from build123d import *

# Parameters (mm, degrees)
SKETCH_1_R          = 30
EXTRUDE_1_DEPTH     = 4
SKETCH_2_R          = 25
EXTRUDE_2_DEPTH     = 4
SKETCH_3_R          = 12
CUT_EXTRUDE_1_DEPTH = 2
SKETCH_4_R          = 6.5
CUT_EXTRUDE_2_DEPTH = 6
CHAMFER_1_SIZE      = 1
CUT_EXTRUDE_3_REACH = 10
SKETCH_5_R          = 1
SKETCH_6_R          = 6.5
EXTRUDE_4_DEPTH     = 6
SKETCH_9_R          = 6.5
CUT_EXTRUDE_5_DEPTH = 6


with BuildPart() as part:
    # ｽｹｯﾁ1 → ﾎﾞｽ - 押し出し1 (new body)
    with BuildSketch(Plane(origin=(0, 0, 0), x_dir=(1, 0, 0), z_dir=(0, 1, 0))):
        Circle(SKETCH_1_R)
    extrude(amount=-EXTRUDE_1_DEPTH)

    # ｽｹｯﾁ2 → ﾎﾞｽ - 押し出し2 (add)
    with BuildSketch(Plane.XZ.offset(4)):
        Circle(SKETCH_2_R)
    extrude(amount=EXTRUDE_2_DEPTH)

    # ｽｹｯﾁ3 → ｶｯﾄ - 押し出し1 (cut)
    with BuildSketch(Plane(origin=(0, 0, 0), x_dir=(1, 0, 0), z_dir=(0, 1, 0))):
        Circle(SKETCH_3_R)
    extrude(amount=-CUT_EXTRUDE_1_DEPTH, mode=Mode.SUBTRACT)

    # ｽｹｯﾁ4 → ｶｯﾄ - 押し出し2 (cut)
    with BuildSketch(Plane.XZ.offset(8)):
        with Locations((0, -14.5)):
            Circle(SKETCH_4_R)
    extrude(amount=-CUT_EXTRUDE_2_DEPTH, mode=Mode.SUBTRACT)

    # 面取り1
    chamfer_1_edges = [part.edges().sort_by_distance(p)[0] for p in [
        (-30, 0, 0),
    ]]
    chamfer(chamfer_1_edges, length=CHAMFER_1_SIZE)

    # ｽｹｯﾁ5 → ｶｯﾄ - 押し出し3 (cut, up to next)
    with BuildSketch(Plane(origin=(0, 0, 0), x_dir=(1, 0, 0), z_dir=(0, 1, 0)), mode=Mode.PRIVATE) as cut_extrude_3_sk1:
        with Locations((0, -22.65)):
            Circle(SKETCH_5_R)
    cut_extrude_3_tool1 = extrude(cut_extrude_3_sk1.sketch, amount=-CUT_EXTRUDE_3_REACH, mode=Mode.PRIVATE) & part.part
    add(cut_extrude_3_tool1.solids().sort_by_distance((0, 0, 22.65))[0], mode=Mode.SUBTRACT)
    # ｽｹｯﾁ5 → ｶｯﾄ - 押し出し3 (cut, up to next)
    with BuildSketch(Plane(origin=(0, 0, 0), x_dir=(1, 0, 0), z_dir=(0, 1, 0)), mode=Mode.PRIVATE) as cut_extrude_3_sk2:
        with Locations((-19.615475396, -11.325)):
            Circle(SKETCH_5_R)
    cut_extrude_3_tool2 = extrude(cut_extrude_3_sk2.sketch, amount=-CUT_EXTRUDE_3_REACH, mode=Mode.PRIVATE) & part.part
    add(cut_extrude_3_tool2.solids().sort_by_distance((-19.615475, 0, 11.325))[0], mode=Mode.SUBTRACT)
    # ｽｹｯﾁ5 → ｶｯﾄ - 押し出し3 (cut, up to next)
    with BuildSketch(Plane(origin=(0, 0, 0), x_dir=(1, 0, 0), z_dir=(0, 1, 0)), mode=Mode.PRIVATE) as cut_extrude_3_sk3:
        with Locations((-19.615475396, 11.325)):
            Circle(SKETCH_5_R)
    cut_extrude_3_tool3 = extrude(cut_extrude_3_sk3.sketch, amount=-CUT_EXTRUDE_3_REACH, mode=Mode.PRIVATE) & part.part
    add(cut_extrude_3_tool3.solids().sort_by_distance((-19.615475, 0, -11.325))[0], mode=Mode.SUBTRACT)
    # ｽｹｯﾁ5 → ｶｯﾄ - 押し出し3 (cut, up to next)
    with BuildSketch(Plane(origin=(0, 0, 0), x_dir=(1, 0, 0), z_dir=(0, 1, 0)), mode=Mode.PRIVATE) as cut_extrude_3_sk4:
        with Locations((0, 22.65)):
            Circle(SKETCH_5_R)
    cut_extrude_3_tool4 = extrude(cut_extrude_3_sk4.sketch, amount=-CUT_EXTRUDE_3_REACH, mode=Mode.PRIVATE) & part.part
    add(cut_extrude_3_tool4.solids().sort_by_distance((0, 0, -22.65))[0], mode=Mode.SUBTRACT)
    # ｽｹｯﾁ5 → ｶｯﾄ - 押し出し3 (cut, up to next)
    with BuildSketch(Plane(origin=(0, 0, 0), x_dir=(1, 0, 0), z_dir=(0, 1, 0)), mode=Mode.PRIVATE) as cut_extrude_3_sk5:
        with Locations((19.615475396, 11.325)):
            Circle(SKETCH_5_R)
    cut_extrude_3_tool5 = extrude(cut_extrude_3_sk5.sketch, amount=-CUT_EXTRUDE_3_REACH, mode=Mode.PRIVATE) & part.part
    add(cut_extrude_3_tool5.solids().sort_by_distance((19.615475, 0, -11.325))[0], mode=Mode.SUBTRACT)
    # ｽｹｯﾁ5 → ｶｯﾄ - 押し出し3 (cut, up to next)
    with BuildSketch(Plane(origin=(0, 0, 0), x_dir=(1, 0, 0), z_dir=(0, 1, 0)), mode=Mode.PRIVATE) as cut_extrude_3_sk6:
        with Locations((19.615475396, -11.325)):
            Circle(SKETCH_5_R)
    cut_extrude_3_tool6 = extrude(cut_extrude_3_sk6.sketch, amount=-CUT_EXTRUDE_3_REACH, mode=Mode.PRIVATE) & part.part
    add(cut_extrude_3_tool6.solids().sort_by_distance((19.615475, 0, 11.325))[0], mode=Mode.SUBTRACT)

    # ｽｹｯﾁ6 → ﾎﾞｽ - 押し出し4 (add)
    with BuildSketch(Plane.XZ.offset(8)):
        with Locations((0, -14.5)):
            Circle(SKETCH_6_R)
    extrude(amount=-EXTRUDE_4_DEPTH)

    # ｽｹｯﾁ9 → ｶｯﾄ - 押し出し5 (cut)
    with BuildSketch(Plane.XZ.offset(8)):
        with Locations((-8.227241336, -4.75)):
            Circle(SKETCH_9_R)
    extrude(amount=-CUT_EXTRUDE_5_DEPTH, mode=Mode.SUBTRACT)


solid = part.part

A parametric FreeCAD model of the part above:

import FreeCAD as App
import Part
import Sketcher
Q = App.Units.Quantity


def edges_at(feature, points):
    """Names of the edges that pass closest to the given points."""
    edges = feature.Shape.Edges
    near = lambda p: min(range(len(edges)), key=lambda i: edges[i].distToShape(Part.Vertex(*p))[0])
    return sorted({f"Edge{near(p) + 1}" for p in points})

doc = App.newDocument("Part")
params = doc.addObject("Spreadsheet::Sheet", "Params")
for row, (alias, value) in enumerate([
    ("sketch1_diameter", "60 mm"),
    ("pad1_length", "4 mm"),
    ("sketch2_diameter", "50 mm"),
    ("pad2_length", "4 mm"),
    ("sketch3_diameter", "24 mm"),
    ("pocket1_length", "2 mm"),
    ("sketch4_diameter", "13 mm"),
    ("pocket2_length", "6 mm"),
    ("chamfer_size", "1 mm"),
    ("sketch5_diameter", "2 mm"),
    ("sketch6_diameter", "2 mm"),
    ("sketch7_diameter", "2 mm"),
    ("sketch8_diameter", "2 mm"),
    ("sketch9_diameter", "2 mm"),
    ("sketch10_diameter", "2 mm"),
    ("sketch11_diameter", "13 mm"),
    ("pad3_length", "6 mm"),
    ("sketch12_diameter", "13 mm"),
    ("pocket9_length", "6 mm"),
], start=1):
    params.set(f"A{row}", alias)
    params.set(f"B{row}", "=" + value)
    params.setAlias(f"B{row}", alias)

body = doc.addObject("PartDesign::Body", "Body")

# Sketch on XZ plane
sketch1 = body.newObject("Sketcher::SketchObject", "Sketch")
sketch1.AttachmentSupport = (doc.getObject("XZ_Plane"), [""])
sketch1.MapMode = "FlatFace"
sketch1.addGeometry(Part.Circle(App.Vector(0, 0, 0), App.Vector(0, 0, 1), 30), False)
sketch1.addConstraint(Sketcher.Constraint("Coincident", 0, 3, -1, 1))
sketch1.addConstraint(Sketcher.Constraint("Diameter", 0, Q("60 mm")))
sketch1.setExpression("Constraints[1]", "Params.sketch1_diameter")
pad1 = body.newObject("PartDesign::Pad", "Pad")
pad1.Profile = sketch1
pad1.setExpression("Length", "Params.pad1_length")

# Sketch on XZ plane
sketch2 = body.newObject("Sketcher::SketchObject", "Sketch001")
sketch2.AttachmentSupport = (doc.getObject("XZ_Plane"), [""])
sketch2.MapMode = "FlatFace"
sketch2.AttachmentOffset = App.Placement(App.Vector(0, 0, 4), App.Rotation())
sketch2.addGeometry(Part.Circle(App.Vector(0, 0, 0), App.Vector(0, 0, 1), 25), False)
sketch2.addConstraint(Sketcher.Constraint("Coincident", 0, 3, -1, 1))
sketch2.addConstraint(Sketcher.Constraint("Diameter", 0, Q("50 mm")))
sketch2.setExpression("Constraints[1]", "Params.sketch2_diameter")
pad2 = body.newObject("PartDesign::Pad", "Pad001")
pad2.Profile = sketch2
pad2.setExpression("Length", "Params.pad2_length")

# Sketch on XZ plane
sketch3 = body.newObject("Sketcher::SketchObject", "Sketch002")
sketch3.AttachmentSupport = (doc.getObject("XZ_Plane"), [""])
sketch3.MapMode = "FlatFace"
sketch3.addGeometry(Part.Circle(App.Vector(0, 0, 0), App.Vector(0, 0, 1), 12), False)
sketch3.addConstraint(Sketcher.Constraint("Coincident", 0, 3, -1, 1))
sketch3.addConstraint(Sketcher.Constraint("Diameter", 0, Q("24 mm")))
sketch3.setExpression("Constraints[1]", "Params.sketch3_diameter")
pocket1 = body.newObject("PartDesign::Pocket", "Pocket")
pocket1.Profile = sketch3
pocket1.setExpression("Length", "Params.pocket1_length")
pocket1.Reversed = True

# Sketch on XZ plane
sketch4 = body.newObject("Sketcher::SketchObject", "Sketch003")
sketch4.AttachmentSupport = (doc.getObject("XZ_Plane"), [""])
sketch4.MapMode = "FlatFace"
sketch4.AttachmentOffset = App.Placement(App.Vector(0, 0, 8), App.Rotation())
sketch4.addGeometry(Part.Circle(App.Vector(0, -14.5, 0), App.Vector(0, 0, 1), 6.5), False)
sketch4.addConstraint(Sketcher.Constraint("PointOnObject", 0, 3, -2))
sketch4.addConstraint(Sketcher.Constraint("Diameter", 0, Q("13 mm")))
sketch4.addConstraint(Sketcher.Constraint("DistanceY", 0, 3, -1, 1, Q("14.5 mm")))
sketch4.setExpression("Constraints[1]", "Params.sketch4_diameter")
pocket2 = body.newObject("PartDesign::Pocket", "Pocket001")
pocket2.Profile = sketch4
pocket2.setExpression("Length", "Params.pocket2_length")
doc.recompute()

chamfer = body.newObject("PartDesign::Chamfer", "Chamfer")
chamfer.Base = (pocket2, edges_at(pocket2, [(-30, 0, 0)]))
chamfer.setExpression("Size", "Params.chamfer_size")

# Sketch on XZ plane
sketch5 = body.newObject("Sketcher::SketchObject", "Sketch004")
sketch5.AttachmentSupport = (doc.getObject("XZ_Plane"), [""])
sketch5.MapMode = "FlatFace"
sketch5.addGeometry(Part.Circle(App.Vector(0, 22.65, 0), App.Vector(0, 0, 1), 1), False)
sketch5.addConstraint(Sketcher.Constraint("PointOnObject", 0, 3, -2))
sketch5.addConstraint(Sketcher.Constraint("Diameter", 0, Q("2 mm")))
sketch5.addConstraint(Sketcher.Constraint("DistanceY", -1, 1, 0, 3, Q("22.65 mm")))
sketch5.setExpression("Constraints[1]", "Params.sketch5_diameter")
pocket3 = body.newObject("PartDesign::Pocket", "Pocket002")
pocket3.Profile = sketch5
pocket3.Type = "UpToFirst"
pocket3.Reversed = True

# Sketch on XZ plane
sketch6 = body.newObject("Sketcher::SketchObject", "Sketch005")
sketch6.AttachmentSupport = (doc.getObject("XZ_Plane"), [""])
sketch6.MapMode = "FlatFace"
sketch6.addGeometry(Part.Circle(App.Vector(-19.615475, 11.325, 0), App.Vector(0, 0, 1), 1), False)
sketch6.addConstraint(Sketcher.Constraint("Diameter", 0, Q("2 mm")))
sketch6.addConstraint(Sketcher.Constraint("DistanceY", -1, 1, 0, 3, Q("11.325 mm")))
sketch6.addConstraint(Sketcher.Constraint("DistanceX", 0, 3, -1, 1, Q("19.615475 mm")))
sketch6.setExpression("Constraints[0]", "Params.sketch6_diameter")
pocket4 = body.newObject("PartDesign::Pocket", "Pocket003")
pocket4.Profile = sketch6
pocket4.Type = "UpToFirst"
pocket4.Reversed = True

# Sketch on XZ plane
sketch7 = body.newObject("Sketcher::SketchObject", "Sketch006")
sketch7.AttachmentSupport = (doc.getObject("XZ_Plane"), [""])
sketch7.MapMode = "FlatFace"
sketch7.addGeometry(Part.Circle(App.Vector(-19.615475, -11.325, 0), App.Vector(0, 0, 1), 1), False)
sketch7.addConstraint(Sketcher.Constraint("Diameter", 0, Q("2 mm")))
sketch7.addConstraint(Sketcher.Constraint("DistanceY", 0, 3, -1, 1, Q("11.325 mm")))
sketch7.addConstraint(Sketcher.Constraint("DistanceX", 0, 3, -1, 1, Q("19.615475 mm")))
sketch7.setExpression("Constraints[0]", "Params.sketch7_diameter")
pocket5 = body.newObject("PartDesign::Pocket", "Pocket004")
pocket5.Profile = sketch7
pocket5.Type = "UpToFirst"
pocket5.Reversed = True

# Sketch on XZ plane
sketch8 = body.newObject("Sketcher::SketchObject", "Sketch007")
sketch8.AttachmentSupport = (doc.getObject("XZ_Plane"), [""])
sketch8.MapMode = "FlatFace"
sketch8.addGeometry(Part.Circle(App.Vector(0, -22.65, 0), App.Vector(0, 0, 1), 1), False)
sketch8.addConstraint(Sketcher.Constraint("PointOnObject", 0, 3, -2))
sketch8.addConstraint(Sketcher.Constraint("Diameter", 0, Q("2 mm")))
sketch8.addConstraint(Sketcher.Constraint("DistanceY", 0, 3, -1, 1, Q("22.65 mm")))
sketch8.setExpression("Constraints[1]", "Params.sketch8_diameter")
pocket6 = body.newObject("PartDesign::Pocket", "Pocket005")
pocket6.Profile = sketch8
pocket6.Type = "UpToFirst"
pocket6.Reversed = True

# Sketch on XZ plane
sketch9 = body.newObject("Sketcher::SketchObject", "Sketch008")
sketch9.AttachmentSupport = (doc.getObject("XZ_Plane"), [""])
sketch9.MapMode = "FlatFace"
sketch9.addGeometry(Part.Circle(App.Vector(19.615475, -11.325, 0), App.Vector(0, 0, 1), 1), False)
sketch9.addConstraint(Sketcher.Constraint("Diameter", 0, Q("2 mm")))
sketch9.addConstraint(Sketcher.Constraint("DistanceY", 0, 3, -1, 1, Q("11.325 mm")))
sketch9.addConstraint(Sketcher.Constraint("DistanceX", -1, 1, 0, 3, Q("19.615475 mm")))
sketch9.setExpression("Constraints[0]", "Params.sketch9_diameter")
pocket7 = body.newObject("PartDesign::Pocket", "Pocket006")
pocket7.Profile = sketch9
pocket7.Type = "UpToFirst"
pocket7.Reversed = True

# Sketch on XZ plane
sketch10 = body.newObject("Sketcher::SketchObject", "Sketch009")
sketch10.AttachmentSupport = (doc.getObject("XZ_Plane"), [""])
sketch10.MapMode = "FlatFace"
sketch10.addGeometry(Part.Circle(App.Vector(19.615475, 11.325, 0), App.Vector(0, 0, 1), 1), False)
sketch10.addConstraint(Sketcher.Constraint("Diameter", 0, Q("2 mm")))
sketch10.addConstraint(Sketcher.Constraint("DistanceY", -1, 1, 0, 3, Q("11.325 mm")))
sketch10.addConstraint(Sketcher.Constraint("DistanceX", -1, 1, 0, 3, Q("19.615475 mm")))
sketch10.setExpression("Constraints[0]", "Params.sketch10_diameter")
pocket8 = body.newObject("PartDesign::Pocket", "Pocket007")
pocket8.Profile = sketch10
pocket8.Type = "UpToFirst"
pocket8.Reversed = True

# Sketch on XZ plane
sketch11 = body.newObject("Sketcher::SketchObject", "Sketch010")
sketch11.AttachmentSupport = (doc.getObject("XZ_Plane"), [""])
sketch11.MapMode = "FlatFace"
sketch11.AttachmentOffset = App.Placement(App.Vector(0, 0, 8), App.Rotation())
sketch11.addGeometry(Part.Circle(App.Vector(0, -14.5, 0), App.Vector(0, 0, 1), 6.5), False)
sketch11.addConstraint(Sketcher.Constraint("PointOnObject", 0, 3, -2))
sketch11.addConstraint(Sketcher.Constraint("Diameter", 0, Q("13 mm")))
sketch11.addConstraint(Sketcher.Constraint("DistanceY", 0, 3, -1, 1, Q("14.5 mm")))
sketch11.setExpression("Constraints[1]", "Params.sketch11_diameter")
pad3 = body.newObject("PartDesign::Pad", "Pad002")
pad3.Profile = sketch11
pad3.setExpression("Length", "Params.pad3_length")
pad3.Reversed = True

# Sketch on XZ plane
sketch12 = body.newObject("Sketcher::SketchObject", "Sketch011")
sketch12.AttachmentSupport = (doc.getObject("XZ_Plane"), [""])
sketch12.MapMode = "FlatFace"
sketch12.AttachmentOffset = App.Placement(App.Vector(0, 0, 8), App.Rotation())
sketch12.addGeometry(Part.Circle(App.Vector(-8.227241, -4.75, 0), App.Vector(0, 0, 1), 6.5), False)
sketch12.addConstraint(Sketcher.Constraint("Diameter", 0, Q("13 mm")))
sketch12.addConstraint(Sketcher.Constraint("DistanceY", 0, 3, -1, 1, Q("4.75 mm")))
sketch12.addConstraint(Sketcher.Constraint("DistanceX", 0, 3, -1, 1, Q("8.227241 mm")))
sketch12.setExpression("Constraints[0]", "Params.sketch12_diameter")
pocket9 = body.newObject("PartDesign::Pocket", "Pocket008")
pocket9.Profile = sketch12
pocket9.setExpression("Length", "Params.pocket9_length")

doc.recompute()
